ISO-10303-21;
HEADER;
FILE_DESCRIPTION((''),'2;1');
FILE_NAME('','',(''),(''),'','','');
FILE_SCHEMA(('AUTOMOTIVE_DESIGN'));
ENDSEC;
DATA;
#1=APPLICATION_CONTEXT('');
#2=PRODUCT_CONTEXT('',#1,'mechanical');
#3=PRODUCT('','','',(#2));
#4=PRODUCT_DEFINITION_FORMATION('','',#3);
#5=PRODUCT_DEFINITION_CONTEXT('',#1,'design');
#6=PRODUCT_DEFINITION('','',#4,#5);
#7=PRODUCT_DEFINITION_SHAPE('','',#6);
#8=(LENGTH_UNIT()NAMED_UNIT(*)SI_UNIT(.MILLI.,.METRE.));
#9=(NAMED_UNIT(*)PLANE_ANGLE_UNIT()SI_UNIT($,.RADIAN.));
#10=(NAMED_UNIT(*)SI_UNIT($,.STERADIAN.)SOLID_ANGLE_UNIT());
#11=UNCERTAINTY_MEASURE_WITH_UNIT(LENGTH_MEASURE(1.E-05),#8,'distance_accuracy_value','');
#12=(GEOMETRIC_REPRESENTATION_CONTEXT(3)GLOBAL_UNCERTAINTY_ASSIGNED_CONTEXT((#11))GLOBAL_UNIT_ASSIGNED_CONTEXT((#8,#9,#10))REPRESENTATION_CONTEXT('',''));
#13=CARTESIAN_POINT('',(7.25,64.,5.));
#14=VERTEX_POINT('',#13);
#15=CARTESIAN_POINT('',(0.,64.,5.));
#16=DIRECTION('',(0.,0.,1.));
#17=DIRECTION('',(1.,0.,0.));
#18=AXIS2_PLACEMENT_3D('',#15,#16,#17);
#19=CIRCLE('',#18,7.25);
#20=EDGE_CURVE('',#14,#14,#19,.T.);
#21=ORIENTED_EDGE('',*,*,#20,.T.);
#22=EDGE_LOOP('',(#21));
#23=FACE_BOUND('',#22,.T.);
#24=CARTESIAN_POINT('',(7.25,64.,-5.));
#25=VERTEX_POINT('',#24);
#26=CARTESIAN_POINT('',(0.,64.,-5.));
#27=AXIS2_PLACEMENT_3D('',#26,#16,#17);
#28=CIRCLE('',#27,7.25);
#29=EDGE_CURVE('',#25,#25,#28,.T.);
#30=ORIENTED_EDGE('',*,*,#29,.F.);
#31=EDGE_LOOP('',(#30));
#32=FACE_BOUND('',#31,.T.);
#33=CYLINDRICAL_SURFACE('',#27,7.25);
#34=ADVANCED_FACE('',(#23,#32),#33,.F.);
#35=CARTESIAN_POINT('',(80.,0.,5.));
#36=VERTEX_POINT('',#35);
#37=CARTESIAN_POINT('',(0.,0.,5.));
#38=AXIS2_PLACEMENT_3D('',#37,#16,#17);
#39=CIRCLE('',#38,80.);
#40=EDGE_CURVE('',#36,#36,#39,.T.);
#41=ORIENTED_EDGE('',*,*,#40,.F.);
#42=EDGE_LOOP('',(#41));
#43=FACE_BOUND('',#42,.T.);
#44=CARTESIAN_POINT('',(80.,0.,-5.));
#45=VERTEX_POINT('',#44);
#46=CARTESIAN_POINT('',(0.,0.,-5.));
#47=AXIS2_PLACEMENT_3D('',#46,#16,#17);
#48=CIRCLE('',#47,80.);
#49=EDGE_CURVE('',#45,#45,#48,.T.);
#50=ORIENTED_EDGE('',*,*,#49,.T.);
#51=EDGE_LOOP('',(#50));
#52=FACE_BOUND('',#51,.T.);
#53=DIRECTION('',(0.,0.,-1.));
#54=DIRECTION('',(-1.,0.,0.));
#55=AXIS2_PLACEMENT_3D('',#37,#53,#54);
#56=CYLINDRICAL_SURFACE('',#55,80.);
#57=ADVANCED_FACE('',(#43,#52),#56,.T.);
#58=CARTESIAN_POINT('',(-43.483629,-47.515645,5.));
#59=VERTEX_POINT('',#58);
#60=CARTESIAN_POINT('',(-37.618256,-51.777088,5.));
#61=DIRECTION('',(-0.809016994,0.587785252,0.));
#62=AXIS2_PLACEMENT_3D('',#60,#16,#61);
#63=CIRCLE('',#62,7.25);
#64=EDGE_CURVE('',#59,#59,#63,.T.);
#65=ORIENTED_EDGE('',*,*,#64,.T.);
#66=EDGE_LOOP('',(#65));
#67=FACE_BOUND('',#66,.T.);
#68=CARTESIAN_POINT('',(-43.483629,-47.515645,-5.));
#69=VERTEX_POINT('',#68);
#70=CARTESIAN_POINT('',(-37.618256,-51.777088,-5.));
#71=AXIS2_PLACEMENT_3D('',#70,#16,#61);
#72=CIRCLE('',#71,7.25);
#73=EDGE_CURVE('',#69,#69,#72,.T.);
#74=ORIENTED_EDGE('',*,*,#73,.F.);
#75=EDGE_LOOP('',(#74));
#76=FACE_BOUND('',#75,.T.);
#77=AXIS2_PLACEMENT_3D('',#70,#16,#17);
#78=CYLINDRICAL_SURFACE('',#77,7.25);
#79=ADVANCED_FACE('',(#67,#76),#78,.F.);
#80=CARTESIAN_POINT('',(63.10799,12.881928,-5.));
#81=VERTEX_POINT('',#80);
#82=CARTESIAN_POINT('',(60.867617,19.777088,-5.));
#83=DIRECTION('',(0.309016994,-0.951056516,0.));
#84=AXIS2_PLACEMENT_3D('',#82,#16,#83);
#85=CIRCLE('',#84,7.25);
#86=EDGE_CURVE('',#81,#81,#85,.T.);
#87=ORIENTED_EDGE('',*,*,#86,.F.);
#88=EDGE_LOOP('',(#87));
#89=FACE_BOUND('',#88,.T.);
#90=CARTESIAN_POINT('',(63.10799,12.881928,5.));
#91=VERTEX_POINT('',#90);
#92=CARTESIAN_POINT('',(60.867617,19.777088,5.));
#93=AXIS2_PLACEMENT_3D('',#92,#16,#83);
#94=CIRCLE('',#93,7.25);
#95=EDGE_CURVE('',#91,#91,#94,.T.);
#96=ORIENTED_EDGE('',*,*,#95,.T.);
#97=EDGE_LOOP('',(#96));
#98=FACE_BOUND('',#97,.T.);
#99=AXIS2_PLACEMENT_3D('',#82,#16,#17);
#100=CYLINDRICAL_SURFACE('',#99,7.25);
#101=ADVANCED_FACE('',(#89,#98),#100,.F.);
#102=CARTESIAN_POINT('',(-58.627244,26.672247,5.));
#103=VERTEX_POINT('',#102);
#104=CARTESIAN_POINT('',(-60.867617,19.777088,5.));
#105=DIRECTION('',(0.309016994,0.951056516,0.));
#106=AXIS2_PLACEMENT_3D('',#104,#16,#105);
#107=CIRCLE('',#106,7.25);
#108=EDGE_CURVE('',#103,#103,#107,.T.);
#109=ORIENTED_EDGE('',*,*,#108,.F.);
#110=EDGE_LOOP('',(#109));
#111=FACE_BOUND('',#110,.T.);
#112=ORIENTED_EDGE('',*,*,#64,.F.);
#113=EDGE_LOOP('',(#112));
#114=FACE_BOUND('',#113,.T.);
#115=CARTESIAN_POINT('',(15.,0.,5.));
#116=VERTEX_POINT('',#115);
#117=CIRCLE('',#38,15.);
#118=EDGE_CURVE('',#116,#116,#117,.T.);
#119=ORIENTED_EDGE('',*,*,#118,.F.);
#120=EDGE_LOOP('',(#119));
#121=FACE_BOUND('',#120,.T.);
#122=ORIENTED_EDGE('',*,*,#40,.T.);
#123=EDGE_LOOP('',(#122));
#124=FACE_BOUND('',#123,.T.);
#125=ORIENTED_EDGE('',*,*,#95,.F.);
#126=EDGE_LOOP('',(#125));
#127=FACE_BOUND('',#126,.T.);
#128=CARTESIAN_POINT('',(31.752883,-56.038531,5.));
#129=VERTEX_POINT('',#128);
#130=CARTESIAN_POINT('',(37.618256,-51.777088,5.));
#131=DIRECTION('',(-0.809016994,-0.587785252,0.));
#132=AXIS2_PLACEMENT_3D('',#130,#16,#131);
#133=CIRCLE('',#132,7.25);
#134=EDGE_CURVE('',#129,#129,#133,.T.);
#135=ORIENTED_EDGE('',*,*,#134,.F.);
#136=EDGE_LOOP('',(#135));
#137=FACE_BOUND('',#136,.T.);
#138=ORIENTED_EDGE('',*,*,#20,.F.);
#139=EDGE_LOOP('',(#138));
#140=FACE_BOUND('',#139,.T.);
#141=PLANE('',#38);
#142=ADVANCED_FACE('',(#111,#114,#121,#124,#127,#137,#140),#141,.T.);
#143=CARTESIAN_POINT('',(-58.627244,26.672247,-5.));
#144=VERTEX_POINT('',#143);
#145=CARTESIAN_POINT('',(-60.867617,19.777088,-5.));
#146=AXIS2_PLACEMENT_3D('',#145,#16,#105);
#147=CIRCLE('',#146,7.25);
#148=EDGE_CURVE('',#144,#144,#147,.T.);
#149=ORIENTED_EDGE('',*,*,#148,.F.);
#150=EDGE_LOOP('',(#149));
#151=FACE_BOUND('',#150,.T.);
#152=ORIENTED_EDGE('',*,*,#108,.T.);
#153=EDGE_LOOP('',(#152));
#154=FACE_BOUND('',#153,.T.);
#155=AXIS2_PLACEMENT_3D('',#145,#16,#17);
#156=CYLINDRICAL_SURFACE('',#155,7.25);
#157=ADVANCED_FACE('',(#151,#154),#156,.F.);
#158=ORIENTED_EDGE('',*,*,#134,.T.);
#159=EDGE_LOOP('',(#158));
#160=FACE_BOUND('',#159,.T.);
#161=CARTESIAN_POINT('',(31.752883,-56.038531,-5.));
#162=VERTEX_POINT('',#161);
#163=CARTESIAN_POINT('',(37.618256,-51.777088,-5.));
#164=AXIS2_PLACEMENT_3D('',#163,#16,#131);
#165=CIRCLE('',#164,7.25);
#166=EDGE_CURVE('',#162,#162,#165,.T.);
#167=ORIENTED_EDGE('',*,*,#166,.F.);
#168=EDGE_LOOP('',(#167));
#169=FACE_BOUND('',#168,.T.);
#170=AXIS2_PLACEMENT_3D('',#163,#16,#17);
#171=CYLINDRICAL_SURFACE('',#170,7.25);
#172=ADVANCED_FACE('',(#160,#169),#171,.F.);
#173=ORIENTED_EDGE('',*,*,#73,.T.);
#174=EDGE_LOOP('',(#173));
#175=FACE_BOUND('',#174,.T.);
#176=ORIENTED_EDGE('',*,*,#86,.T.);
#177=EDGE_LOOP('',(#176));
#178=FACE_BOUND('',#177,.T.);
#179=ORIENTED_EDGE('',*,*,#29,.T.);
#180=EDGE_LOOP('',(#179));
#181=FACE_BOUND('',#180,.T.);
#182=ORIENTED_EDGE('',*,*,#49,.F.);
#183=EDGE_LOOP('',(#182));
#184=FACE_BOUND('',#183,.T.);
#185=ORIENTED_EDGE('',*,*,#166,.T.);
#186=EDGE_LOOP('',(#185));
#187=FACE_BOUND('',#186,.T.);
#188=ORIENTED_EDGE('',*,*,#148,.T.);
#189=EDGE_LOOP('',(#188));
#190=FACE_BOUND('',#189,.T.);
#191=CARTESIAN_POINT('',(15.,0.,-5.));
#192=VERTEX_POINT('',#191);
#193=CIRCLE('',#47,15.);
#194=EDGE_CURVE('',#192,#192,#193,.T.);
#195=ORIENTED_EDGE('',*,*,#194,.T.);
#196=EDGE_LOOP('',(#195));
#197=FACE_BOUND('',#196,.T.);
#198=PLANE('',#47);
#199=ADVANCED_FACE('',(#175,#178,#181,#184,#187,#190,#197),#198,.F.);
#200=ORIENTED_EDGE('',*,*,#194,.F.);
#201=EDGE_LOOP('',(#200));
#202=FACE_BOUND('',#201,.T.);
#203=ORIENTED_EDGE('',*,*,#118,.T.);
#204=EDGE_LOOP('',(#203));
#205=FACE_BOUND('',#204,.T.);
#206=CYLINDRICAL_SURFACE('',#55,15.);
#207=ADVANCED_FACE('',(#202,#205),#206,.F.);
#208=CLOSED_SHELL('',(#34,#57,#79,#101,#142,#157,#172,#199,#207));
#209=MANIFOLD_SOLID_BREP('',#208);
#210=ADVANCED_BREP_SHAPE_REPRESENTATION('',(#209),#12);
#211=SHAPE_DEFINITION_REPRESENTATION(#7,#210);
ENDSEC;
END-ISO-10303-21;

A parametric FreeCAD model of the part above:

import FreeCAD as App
import Part
import Sketcher
from FreeCAD import Vector

doc = App.newDocument("Part")
params = doc.addObject("Spreadsheet::Sheet", "Params")
for row, (alias, value) in enumerate([
    ("sketch1_diameter", "160 mm"),
    ("sketch1_diameter2", "30 mm"),
    ("pad1_length", "10 mm"),
    ("sketch2_diameter", "14.5 mm"),
    ("pocket1_length", "10 mm"),
], start=1):
    params.set(f"A{row}", alias)
    params.set(f"B{row}", "=" + value)
    params.setAlias(f"B{row}", alias)

body = doc.addObject("PartDesign::Body", "Body")

sketch1 = body.newObject("Sketcher::SketchObject", "Sketch")
sketch1.AttachmentSupport = (doc.getObject("XY_Plane"), [""])
sketch1.MapMode = "FlatFace"
sketch1.addGeometry([
    Part.Circle(Vector(0, 0, 0), Vector(0, 0, 1), 80),
    Part.Circle(Vector(0, 0, 0), Vector(0, 0, 1), 15),
], False)
sketch1.addConstraint([
    Sketcher.Constraint("Coincident", 0, 3, -1, 1),
    Sketcher.Constraint("Coincident", 1, 3, -1, 1),
    Sketcher.Constraint("Diameter", 0, 160.0),
    Sketcher.Constraint("Diameter", 1, 30.0),
])
sketch1.setExpression("Constraints[2]", "Params.sketch1_diameter")
sketch1.setExpression("Constraints[3]", "Params.sketch1_diameter2")
pad1 = body.newObject("PartDesign::Pad", "Pad")
pad1.Profile = sketch1
pad1.setExpression("Length", "Params.pad1_length")
pad1.Midplane = True

sketch2 = body.newObject("Sketcher::SketchObject", "Sketch001")
sketch2.AttachmentSupport = (doc.getObject("XY_Plane"), [""])
sketch2.MapMode = "FlatFace"
sketch2.AttachmentOffset = App.Placement(Vector(0, 0, 5), App.Rotation())
sketch2.addGeometry(Part.Circle(Vector(0, 64, 0), Vector(0, 0, 1), 7), False)
sketch2.addConstraint([
    Sketcher.Constraint("PointOnObject", 0, 3, -2),
    Sketcher.Constraint("Diameter", 0, 14.5),
    Sketcher.Constraint("DistanceY", -1, 1, 0, 3, 64.0),
])
sketch2.setExpression("Constraints[1]", "Params.sketch2_diameter")
pocket1 = body.newObject("PartDesign::Pocket", "Pocket")
pocket1.Profile = sketch2
pocket1.setExpression("Length", "Params.pocket1_length")
doc.recompute()

polarpattern = body.newObject("PartDesign::PolarPattern", "PolarPattern")
polarpattern.Originals = [pocket1]
polarpattern.Axis = (doc.getObject("Z_Axis"), [""])
polarpattern.Angle = 360
polarpattern.Occurrences = 5
body.Tip = polarpattern

doc.recompute()
